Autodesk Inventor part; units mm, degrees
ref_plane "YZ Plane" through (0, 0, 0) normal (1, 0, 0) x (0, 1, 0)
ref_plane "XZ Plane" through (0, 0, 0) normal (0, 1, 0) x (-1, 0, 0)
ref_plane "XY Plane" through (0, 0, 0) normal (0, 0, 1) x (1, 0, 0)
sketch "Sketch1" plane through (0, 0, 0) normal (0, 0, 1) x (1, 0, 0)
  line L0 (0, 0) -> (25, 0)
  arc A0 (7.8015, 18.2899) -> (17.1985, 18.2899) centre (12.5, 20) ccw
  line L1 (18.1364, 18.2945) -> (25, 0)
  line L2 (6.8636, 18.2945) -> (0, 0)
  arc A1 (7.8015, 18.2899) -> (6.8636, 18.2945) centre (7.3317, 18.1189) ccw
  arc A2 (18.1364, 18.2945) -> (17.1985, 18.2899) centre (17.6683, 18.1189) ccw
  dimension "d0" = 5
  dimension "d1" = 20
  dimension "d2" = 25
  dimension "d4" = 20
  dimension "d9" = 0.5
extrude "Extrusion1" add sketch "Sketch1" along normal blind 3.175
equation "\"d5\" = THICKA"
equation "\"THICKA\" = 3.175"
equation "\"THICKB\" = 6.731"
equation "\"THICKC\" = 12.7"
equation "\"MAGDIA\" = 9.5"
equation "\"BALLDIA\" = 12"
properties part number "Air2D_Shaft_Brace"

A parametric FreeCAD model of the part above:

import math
import FreeCAD as App
import Part
import Sketcher
Q = App.Units.Quantity

doc = App.newDocument("Part")
params = doc.addObject("Spreadsheet::Sheet", "Params")
for row, (alias, value) in enumerate([
    ("sketch1_radius", "5 mm"),
    ("sketch1_radius2", "0.5 mm"),
    ("sketch1_width", "25 mm"),
    ("pad1_length", "3.175 mm"),
], start=1):
    params.set(f"A{row}", alias)
    params.set(f"B{row}", "=" + value)
    params.setAlias(f"B{row}", alias)

body = doc.addObject("PartDesign::Body", "Body")

# Sketch on XY plane
sketch1 = body.newObject("Sketcher::SketchObject", "Sketch")
sketch1.AttachmentSupport = (doc.getObject("XY_Plane"), [""])
sketch1.MapMode = "FlatFace"
sketch1.addGeometry([
    Part.LineSegment(App.Vector(6.86, 18.29, 0), App.Vector(0, 0, 0)),  # 0
    Part.LineSegment(App.Vector(0, 0, 0), App.Vector(25, 0, 0)),  # 1
    Part.LineSegment(App.Vector(25, 0, 0), App.Vector(18.14, 18.29, 0)),  # 2
    Part.ArcOfCircle(Part.Circle(App.Vector(17.67, 18.12, 0), App.Vector(0, 0, 1), 0.5), math.radians(21), math.radians(160)),  # 3
    Part.ArcOfCircle(Part.Circle(App.Vector(12.5, 20, 0), App.Vector(0, 0, 1), 5), math.radians(-160), math.radians(-20)),  # 4
    Part.ArcOfCircle(Part.Circle(App.Vector(7.33, 18.12, 0), App.Vector(0, 0, 1), 0.5), math.radians(20), math.radians(159)),  # 5
], False)
sketch1.addConstraint([
    Sketcher.Constraint("Coincident", 0, 2, 1, 1),
    Sketcher.Constraint("Coincident", 1, 2, 2, 1),
    Sketcher.Constraint("Tangent", 2, 2, 3, 1),
    Sketcher.Constraint("Tangent", 3, 2, 4, 2),
    Sketcher.Constraint("Tangent", 4, 1, 5, 1),
    Sketcher.Constraint("Tangent", 5, 2, 0, 1),
    Sketcher.Constraint("Horizontal", 1),
    Sketcher.Constraint("Coincident", 0, 2, -1, 1),
    Sketcher.Constraint("Equal", 3, 5),
    Sketcher.Constraint("Horizontal", 3, 3, 5, 3),
    Sketcher.Constraint("Horizontal", 2, 2, 5, 2),
    Sketcher.Constraint("Radius", 4, Q("5 mm")),
    Sketcher.Constraint("Radius", 3, Q("0.5 mm")),
    Sketcher.Constraint("DistanceX", 1, 1, 1, 2, Q("25 mm")),
    Sketcher.Constraint("DistanceY", -1, 1, 4, 3, Q("20 mm")),
    Sketcher.Constraint("DistanceY", -1, 1, 3, 2, Q("18.29 mm")),
])
sketch1.setExpression("Constraints[11]", "Params.sketch1_radius")
sketch1.setExpression("Constraints[12]", "Params.sketch1_radius2")
sketch1.setExpression("Constraints[13]", "Params.sketch1_width")
pad1 = body.newObject("PartDesign::Pad", "Pad")
pad1.Profile = sketch1
pad1.setExpression("Length", "Params.pad1_length")

doc.recompute()
